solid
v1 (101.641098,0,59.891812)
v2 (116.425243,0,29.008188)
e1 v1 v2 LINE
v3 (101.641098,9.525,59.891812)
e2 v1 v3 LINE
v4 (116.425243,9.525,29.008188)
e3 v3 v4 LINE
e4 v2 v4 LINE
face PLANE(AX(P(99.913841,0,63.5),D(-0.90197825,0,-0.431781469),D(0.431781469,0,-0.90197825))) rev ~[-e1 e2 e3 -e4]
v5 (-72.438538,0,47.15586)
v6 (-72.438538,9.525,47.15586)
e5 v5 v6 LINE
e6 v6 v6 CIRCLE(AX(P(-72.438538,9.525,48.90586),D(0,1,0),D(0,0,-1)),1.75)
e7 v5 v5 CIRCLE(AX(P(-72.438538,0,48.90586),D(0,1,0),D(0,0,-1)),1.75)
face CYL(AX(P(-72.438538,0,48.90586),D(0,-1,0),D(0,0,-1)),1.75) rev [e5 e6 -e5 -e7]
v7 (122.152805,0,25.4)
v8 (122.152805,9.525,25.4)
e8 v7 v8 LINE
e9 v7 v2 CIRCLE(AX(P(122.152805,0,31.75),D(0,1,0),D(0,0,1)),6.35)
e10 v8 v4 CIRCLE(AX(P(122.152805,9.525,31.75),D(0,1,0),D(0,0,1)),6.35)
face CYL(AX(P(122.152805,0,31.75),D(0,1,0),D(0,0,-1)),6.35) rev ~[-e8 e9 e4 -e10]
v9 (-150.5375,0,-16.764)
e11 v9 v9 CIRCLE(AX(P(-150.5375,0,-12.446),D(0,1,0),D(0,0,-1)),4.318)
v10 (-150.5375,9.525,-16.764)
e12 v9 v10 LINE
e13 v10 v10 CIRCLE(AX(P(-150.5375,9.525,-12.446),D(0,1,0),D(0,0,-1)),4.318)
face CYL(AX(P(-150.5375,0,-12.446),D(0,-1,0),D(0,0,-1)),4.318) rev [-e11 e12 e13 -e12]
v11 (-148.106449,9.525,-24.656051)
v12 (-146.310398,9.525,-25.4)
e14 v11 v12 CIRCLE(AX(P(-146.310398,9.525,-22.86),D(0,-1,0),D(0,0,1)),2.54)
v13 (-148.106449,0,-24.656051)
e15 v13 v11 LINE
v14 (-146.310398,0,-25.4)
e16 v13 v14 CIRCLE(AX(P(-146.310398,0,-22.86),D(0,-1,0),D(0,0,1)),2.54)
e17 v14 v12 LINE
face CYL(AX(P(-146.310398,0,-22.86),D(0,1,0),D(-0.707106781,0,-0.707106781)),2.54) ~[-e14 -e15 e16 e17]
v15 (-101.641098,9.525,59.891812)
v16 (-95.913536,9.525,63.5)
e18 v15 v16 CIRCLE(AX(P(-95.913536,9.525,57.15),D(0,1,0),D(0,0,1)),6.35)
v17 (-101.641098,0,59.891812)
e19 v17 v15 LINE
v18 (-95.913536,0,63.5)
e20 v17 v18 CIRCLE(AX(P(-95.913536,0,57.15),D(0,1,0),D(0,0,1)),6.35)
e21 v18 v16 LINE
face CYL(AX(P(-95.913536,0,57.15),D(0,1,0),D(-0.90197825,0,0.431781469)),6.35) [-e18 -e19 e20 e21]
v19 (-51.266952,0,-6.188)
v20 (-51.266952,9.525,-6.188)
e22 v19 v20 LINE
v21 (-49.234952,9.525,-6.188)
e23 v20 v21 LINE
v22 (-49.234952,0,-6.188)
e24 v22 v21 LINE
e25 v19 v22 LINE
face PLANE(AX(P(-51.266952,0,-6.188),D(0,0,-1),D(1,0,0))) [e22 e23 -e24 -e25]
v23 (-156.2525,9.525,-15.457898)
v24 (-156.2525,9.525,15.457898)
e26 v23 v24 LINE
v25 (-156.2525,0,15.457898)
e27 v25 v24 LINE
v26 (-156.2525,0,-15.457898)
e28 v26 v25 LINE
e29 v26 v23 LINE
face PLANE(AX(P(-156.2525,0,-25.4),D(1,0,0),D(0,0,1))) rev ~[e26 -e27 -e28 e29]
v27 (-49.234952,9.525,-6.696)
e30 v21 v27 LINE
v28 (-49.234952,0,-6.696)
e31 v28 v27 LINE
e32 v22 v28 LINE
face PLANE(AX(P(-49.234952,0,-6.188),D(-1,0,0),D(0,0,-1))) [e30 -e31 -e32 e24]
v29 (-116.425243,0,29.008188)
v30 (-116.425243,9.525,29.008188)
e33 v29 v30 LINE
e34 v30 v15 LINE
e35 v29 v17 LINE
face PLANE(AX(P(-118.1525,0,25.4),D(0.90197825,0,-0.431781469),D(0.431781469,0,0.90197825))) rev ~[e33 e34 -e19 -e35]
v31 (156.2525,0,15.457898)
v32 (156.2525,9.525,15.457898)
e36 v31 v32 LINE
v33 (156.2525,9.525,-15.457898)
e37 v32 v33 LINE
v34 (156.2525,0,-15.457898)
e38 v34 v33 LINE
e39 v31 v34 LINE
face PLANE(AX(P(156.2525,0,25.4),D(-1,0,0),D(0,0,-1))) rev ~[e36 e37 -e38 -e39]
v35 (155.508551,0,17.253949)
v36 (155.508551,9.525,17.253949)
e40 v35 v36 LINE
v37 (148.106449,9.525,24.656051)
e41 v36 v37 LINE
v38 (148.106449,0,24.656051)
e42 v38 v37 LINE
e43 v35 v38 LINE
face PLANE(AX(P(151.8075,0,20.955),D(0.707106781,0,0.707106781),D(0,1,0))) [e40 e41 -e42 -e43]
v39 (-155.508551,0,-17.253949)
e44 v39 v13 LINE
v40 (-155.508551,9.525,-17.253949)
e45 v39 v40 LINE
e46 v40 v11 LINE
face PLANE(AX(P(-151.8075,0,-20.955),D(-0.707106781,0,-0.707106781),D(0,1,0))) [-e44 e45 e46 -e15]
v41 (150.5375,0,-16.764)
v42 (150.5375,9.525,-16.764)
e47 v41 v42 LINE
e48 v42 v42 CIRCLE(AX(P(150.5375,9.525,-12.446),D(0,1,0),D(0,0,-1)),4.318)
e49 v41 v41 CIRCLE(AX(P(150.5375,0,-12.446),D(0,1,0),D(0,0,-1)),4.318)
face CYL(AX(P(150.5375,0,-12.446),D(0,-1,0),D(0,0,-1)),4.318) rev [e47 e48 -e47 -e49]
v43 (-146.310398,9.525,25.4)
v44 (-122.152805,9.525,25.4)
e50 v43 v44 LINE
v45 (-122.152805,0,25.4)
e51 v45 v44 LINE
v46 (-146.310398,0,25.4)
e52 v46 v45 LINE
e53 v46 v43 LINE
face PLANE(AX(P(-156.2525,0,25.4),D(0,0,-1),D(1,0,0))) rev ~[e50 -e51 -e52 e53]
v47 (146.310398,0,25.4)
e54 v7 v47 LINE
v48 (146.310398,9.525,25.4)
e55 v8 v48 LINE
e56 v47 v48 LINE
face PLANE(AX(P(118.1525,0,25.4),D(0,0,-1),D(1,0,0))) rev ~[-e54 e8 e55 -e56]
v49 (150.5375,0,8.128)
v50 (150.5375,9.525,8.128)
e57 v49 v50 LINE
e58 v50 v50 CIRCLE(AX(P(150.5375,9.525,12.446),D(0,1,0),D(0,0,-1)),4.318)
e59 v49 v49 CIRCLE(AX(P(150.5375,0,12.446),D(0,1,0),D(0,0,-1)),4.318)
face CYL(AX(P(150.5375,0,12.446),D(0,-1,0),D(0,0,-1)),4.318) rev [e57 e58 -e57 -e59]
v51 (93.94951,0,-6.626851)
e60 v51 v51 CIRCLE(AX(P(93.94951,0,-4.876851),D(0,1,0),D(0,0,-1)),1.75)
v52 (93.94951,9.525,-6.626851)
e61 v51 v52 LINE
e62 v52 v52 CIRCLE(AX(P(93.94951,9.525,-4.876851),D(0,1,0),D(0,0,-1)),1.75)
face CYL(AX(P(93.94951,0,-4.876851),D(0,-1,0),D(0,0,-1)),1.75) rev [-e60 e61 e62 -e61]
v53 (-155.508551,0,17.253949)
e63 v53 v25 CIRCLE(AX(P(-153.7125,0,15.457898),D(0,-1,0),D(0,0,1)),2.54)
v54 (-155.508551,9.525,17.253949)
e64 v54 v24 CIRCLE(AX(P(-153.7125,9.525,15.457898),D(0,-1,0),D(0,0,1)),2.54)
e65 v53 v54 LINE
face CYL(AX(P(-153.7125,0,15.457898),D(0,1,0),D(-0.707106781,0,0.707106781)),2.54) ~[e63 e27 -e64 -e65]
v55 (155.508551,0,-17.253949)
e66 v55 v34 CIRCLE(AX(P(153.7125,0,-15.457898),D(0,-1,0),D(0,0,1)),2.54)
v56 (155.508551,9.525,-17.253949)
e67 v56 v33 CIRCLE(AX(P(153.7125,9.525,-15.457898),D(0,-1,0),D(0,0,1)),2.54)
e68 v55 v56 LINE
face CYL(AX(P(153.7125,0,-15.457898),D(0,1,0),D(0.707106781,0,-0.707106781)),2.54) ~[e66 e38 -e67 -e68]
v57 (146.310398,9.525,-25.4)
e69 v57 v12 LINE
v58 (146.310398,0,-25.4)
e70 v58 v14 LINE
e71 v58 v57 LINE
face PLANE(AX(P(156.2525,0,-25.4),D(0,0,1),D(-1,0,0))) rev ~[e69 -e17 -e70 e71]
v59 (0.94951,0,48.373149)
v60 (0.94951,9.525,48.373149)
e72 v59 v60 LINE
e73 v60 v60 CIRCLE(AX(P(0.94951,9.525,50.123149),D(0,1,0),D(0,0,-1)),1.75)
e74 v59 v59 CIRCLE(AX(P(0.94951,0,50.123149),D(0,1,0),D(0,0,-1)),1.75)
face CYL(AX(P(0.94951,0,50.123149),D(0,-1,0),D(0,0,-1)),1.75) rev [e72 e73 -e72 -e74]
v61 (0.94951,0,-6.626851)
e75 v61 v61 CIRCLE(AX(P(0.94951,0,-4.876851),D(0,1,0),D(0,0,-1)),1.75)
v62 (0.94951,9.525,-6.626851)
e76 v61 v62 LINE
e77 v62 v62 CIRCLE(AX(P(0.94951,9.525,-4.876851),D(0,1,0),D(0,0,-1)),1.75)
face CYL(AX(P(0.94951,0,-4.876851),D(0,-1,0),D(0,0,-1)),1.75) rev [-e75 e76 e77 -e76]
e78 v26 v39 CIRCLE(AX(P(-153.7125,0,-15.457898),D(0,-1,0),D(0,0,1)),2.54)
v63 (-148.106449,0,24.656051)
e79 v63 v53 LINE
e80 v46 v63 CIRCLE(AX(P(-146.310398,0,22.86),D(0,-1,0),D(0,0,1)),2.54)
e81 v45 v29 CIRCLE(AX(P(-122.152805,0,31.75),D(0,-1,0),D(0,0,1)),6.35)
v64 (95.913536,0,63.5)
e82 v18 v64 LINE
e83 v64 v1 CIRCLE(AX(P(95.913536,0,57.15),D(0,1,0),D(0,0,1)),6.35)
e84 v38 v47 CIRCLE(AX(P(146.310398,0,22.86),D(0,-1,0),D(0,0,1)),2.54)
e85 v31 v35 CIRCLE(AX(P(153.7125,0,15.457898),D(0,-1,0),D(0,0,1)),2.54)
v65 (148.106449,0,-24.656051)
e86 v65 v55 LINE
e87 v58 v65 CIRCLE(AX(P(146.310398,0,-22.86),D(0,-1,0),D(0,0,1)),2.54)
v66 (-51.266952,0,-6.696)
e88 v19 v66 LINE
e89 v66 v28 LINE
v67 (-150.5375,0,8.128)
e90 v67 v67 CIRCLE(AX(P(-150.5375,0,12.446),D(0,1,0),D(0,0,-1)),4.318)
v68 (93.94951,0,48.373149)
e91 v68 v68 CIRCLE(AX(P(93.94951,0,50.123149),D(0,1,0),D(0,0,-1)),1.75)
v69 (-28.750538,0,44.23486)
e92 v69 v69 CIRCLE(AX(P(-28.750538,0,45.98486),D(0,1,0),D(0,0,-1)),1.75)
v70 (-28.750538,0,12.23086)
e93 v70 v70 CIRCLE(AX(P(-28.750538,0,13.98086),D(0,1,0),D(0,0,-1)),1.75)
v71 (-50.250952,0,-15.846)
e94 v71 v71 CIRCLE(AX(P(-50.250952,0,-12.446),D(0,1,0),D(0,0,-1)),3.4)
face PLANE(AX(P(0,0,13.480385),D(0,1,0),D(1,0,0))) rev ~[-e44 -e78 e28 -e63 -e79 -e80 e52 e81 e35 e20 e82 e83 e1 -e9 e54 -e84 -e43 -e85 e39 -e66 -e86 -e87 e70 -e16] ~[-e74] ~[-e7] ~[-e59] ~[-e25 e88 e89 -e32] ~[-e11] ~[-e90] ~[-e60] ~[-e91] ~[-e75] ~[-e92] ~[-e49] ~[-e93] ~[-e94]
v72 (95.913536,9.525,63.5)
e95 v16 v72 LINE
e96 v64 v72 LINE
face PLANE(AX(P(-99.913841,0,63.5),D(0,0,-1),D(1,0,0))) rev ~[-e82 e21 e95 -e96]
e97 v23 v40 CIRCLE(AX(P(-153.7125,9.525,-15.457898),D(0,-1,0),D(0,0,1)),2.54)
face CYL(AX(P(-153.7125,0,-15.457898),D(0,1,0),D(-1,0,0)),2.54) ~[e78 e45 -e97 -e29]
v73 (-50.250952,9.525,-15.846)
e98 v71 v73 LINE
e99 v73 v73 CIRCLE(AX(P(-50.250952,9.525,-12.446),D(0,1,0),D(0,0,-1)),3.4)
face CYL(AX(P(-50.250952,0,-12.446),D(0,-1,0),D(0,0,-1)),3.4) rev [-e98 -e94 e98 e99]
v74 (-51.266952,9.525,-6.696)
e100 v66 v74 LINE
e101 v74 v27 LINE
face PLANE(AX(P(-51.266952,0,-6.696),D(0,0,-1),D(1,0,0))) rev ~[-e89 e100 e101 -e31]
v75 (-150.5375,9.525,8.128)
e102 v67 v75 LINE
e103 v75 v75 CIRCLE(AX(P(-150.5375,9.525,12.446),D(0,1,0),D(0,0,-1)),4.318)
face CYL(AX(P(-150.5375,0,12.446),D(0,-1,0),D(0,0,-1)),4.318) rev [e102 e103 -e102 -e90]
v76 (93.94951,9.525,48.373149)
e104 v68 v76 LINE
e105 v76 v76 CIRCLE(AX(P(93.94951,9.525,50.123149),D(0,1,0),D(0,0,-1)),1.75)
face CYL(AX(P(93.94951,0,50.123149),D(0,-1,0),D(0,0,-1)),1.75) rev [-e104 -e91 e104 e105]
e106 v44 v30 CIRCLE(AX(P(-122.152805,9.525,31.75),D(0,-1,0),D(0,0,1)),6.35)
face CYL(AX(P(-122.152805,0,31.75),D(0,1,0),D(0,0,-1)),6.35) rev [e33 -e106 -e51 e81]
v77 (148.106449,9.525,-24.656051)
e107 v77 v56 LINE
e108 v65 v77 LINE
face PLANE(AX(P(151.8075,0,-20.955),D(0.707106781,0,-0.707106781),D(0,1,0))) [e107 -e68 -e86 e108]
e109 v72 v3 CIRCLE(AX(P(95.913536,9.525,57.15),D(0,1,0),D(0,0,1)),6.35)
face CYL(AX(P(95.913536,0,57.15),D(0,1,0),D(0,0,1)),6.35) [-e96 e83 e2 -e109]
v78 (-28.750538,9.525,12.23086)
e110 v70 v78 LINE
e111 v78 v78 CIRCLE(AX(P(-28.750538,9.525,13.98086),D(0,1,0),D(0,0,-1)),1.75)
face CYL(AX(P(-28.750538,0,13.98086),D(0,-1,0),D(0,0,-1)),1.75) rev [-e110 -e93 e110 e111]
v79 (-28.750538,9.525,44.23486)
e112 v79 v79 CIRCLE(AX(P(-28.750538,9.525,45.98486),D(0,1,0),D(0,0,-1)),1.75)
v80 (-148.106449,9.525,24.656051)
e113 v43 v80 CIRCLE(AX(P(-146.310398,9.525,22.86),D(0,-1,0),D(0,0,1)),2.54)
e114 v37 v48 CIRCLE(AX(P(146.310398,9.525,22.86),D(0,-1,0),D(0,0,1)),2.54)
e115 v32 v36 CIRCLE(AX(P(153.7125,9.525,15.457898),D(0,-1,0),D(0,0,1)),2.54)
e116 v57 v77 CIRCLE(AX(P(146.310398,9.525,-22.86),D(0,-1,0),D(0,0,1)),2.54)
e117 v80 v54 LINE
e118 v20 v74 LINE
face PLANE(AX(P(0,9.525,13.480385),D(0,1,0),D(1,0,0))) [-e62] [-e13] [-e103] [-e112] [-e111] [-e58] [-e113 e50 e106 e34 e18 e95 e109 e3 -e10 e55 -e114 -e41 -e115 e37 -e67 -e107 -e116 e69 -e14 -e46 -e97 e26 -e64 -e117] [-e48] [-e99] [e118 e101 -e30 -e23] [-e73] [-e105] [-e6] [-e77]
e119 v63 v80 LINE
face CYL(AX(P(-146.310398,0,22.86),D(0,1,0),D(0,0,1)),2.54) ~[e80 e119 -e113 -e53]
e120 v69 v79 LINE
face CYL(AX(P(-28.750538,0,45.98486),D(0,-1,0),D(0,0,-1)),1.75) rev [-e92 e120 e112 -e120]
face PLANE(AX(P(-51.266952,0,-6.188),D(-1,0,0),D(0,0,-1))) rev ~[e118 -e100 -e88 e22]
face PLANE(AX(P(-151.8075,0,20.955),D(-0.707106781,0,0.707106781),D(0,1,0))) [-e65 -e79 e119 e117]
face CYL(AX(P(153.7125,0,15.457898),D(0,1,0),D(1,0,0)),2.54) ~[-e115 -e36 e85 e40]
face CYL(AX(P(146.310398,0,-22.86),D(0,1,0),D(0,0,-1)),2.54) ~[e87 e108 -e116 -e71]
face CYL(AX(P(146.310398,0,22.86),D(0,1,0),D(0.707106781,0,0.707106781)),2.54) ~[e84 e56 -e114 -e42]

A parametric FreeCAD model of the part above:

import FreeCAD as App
import Part
import Sketcher
from FreeCAD import Vector
Q = App.Units.Quantity


def edges_at(feature, points):
    """Names of the edges that pass closest to the given points."""
    edges = feature.Shape.Edges
    near = lambda p: min(range(len(edges)), key=lambda i: edges[i].distToShape(Part.Vertex(*p))[0])
    return sorted({f"Edge{near(p) + 1}" for p in points})

doc = App.newDocument("Part")
body = doc.addObject("PartDesign::Body", "Body")

# Sketch on XZ plane
sketch1 = doc.addObject("Sketcher::SketchObject", "Sketch")
body.addObject(sketch1)
sketch1.AttachmentSupport = (doc.XZ_Plane, [""])
sketch1.MapMode = "FlatFace"
sketch1.addGeometry([
    Part.LineSegment(Vector(-156.2525, -25.4, 0), Vector(-156.2525, 25.4, 0)),  # 0
    Part.LineSegment(Vector(-156.2525, 25.4, 0), Vector(-118.1525, 25.4, 0)),  # 1
    Part.LineSegment(Vector(-118.1525, 25.4, 0), Vector(-99.913841, 63.5, 0)),  # 2
    Part.LineSegment(Vector(-99.913841, 63.5, 0), Vector(99.913841, 63.5, 0)),  # 3
    Part.LineSegment(Vector(99.913841, 63.5, 0), Vector(118.1525, 25.4, 0)),  # 4
    Part.LineSegment(Vector(118.1525, 25.4, 0), Vector(156.2525, 25.4, 0)),  # 5
    Part.LineSegment(Vector(156.2525, 25.4, 0), Vector(156.2525, -25.4, 0)),  # 6
    Part.LineSegment(Vector(156.2525, -25.4, 0), Vector(-156.2525, -25.4, 0)),  # 7
    Part.Circle(Vector(-72.438538, 48.90586, 0), Vector(0, 0, 1), 1.75),  # 8
    Part.Circle(Vector(-28.750538, 45.98486, 0), Vector(0, 0, 1), 1.75),  # 9
    Part.Circle(Vector(0.94951, 50.123149, 0), Vector(0, 0, 1), 1.75),  # 10
    Part.Circle(Vector(93.94951, 50.123149, 0), Vector(0, 0, 1), 1.75),  # 11
    Part.Circle(Vector(-150.5375, 12.446, 0), Vector(0, 0, 1), 4.318),  # 12
    Part.Circle(Vector(-28.750538, 13.98086, 0), Vector(0, 0, 1), 1.75),  # 13
    Part.Circle(Vector(-150.5375, -12.446, 0), Vector(0, 0, 1), 4.318),  # 14
    Part.LineSegment(Vector(-49.234952, -6.188, 0), Vector(-51.266952, -6.188, 0)),  # 15
    Part.LineSegment(Vector(-51.266952, -6.188, 0), Vector(-51.266952, -6.696, 0)),  # 16
    Part.LineSegment(Vector(-51.266952, -6.696, 0), Vector(-49.234952, -6.696, 0)),  # 17
    Part.LineSegment(Vector(-49.234952, -6.696, 0), Vector(-49.234952, -6.188, 0)),  # 18
    Part.Circle(Vector(-50.250952, -12.446, 0), Vector(0, 0, 1), 3.4),  # 19
    Part.Circle(Vector(150.5375, 12.446, 0), Vector(0, 0, 1), 4.318),  # 20
    Part.Circle(Vector(0.94951, -4.876851, 0), Vector(0, 0, 1), 1.75),  # 21
    Part.Circle(Vector(93.94951, -4.876851, 0), Vector(0, 0, 1), 1.75),  # 22
    Part.Circle(Vector(150.5375, -12.446, 0), Vector(0, 0, 1), 4.318),  # 23
], False)
sketch1.addConstraint([
    Sketcher.Constraint("Coincident", 0, 2, 1, 1),
    Sketcher.Constraint("Coincident", 1, 2, 2, 1),
    Sketcher.Constraint("Coincident", 2, 2, 3, 1),
    Sketcher.Constraint("Coincident", 3, 2, 4, 1),
    Sketcher.Constraint("Coincident", 4, 2, 5, 1),
    Sketcher.Constraint("Coincident", 5, 2, 6, 1),
    Sketcher.Constraint("Coincident", 6, 2, 7, 1),
    Sketcher.Constraint("Coincident", 7, 2, 0, 1),
    Sketcher.Constraint("Coincident", 15, 2, 16, 1),
    Sketcher.Constraint("Coincident", 16, 2, 17, 1),
    Sketcher.Constraint("Coincident", 17, 2, 18, 1),
    Sketcher.Constraint("Coincident", 18, 2, 15, 1),
    Sketcher.Constraint("Vertical", 0),
    Sketcher.Constraint("Horizontal", 1),
    Sketcher.Constraint("Horizontal", 3),
    Sketcher.Constraint("Horizontal", 5),
    Sketcher.Constraint("Vertical", 6),
    Sketcher.Constraint("Horizontal", 7),
    Sketcher.Constraint("Horizontal", 15),
    Sketcher.Constraint("Vertical", 16),
    Sketcher.Constraint("Horizontal", 17),
    Sketcher.Constraint("Vertical", 18),
    Sketcher.Constraint("Equal", 8, 9),
    Sketcher.Constraint("Equal", 9, 10),
    Sketcher.Constraint("Equal", 10, 11),
    Sketcher.Constraint("Equal", 11, 13),
    Sketcher.Constraint("Equal", 12, 14),
    Sketcher.Constraint("Equal", 14, 20),
    Sketcher.Constraint("Equal", 13, 21),
    Sketcher.Constraint("Equal", 21, 22),
    Sketcher.Constraint("Equal", 20, 23),
    Sketcher.Constraint("Symmetric", 14, 3, 20, 3, -1, 1),
    Sketcher.Constraint("Symmetric", 12, 3, 23, 3, -1, 1),
    Sketcher.Constraint("Symmetric", 0, 2, 6, 2, -1, 1),
    Sketcher.Constraint("Symmetric", 12, 3, 20, 3, -2),
    Sketcher.Constraint("Symmetric", 1, 2, 4, 2, -2),
    Sketcher.Constraint("Horizontal", 10, 3, 11, 3),
    Sketcher.Constraint("Horizontal", 14, 3, 19, 3),
    Sketcher.Constraint("Horizontal", 21, 3, 22, 3),
    Sketcher.Constraint("Vertical", 9, 3, 13, 3),
    Sketcher.Constraint("Vertical", 10, 3, 21, 3),
    Sketcher.Constraint("Vertical", 11, 3, 22, 3),
    Sketcher.Constraint("Equal", 2, 4),
    Sketcher.Constraint("Diameter", 12, Q("0.34 in")),
    Sketcher.Constraint("DistanceY", 0, 1, 0, 2, Q("2 in")),
    Sketcher.Constraint("DistanceX", 1, 1, 1, 2, Q("1.5 in")),
    Sketcher.Constraint("DistanceX", 15, 2, 15, 1, Q("0.08 in")),
    Sketcher.Constraint("DistanceY", 16, 2, 16, 1, Q("0.02 in")),
    Sketcher.Constraint("DistanceY", -1, 1, 2, 2, Q("2.5 in")),
    Sketcher.Constraint("Diameter", 8, Q("3.5 mm")),
    Sketcher.Constraint("Diameter", 19, Q("6.8 mm")),
    Sketcher.Constraint("DistanceY", -1, 1, 12, 3, Q("0.49 in")),
    Sketcher.Constraint("DistanceX", 8, 3, 9, 3, Q("1.72 in")),
    Sketcher.Constraint("DistanceY", 13, 3, 9, 3, Q("1.26 in")),
    Sketcher.Constraint("DistanceX", 15, 2, 19, 3, Q("0.04 in")),
    Sketcher.Constraint("DistanceY", 9, 3, 8, 3, Q("0.115 in")),
    Sketcher.Constraint("DistanceX", 0, 2, 12, 3, Q("0.225 in")),
    Sketcher.Constraint("DistanceX", 7, 2, 7, 1, Q("312.505 mm")),
    Sketcher.Constraint("DistanceX", 3, 1, 3, 2, Q("199.827681 mm")),
    Sketcher.Constraint("DistanceY", 15, 2, -1, 1, Q("6.188 mm")),
    Sketcher.Constraint("DistanceX", 10, 3, 11, 3, Q("93 mm")),
    Sketcher.Constraint("DistanceY", 21, 3, 10, 3, Q("55 mm")),
    Sketcher.Constraint("DistanceX", 8, 3, -1, 1, Q("72.438538 mm")),
    Sketcher.Constraint("DistanceY", -1, 1, 8, 3, Q("48.90586 mm")),
    Sketcher.Constraint("DistanceX", -1, 1, 10, 3, Q("0.94951 mm")),
    Sketcher.Constraint("DistanceY", -1, 1, 10, 3, Q("50.123149 mm")),
    Sketcher.Constraint("DistanceX", 19, 3, -1, 1, Q("50.250952 mm")),
])
pad1 = doc.addObject("PartDesign::Pad", "Pad")
body.addObject(pad1)
pad1.Profile = sketch1
pad1.Length = Q("0.375 in")
pad1.Reversed = True
doc.recompute()

fillet = doc.addObject("PartDesign::Fillet", "Fillet")
body.addObject(fillet)
fillet.Base = (pad1, edges_at(pad1, [
    (118.153, 4.763, 25.4),
    (99.914, 4.763, 63.5),
    (-99.914, 4.763, 63.5),
    (-118.153, 4.763, 25.4),
]))
fillet.Radius = Q("0.25 in")
doc.recompute()

chamfer = doc.addObject("PartDesign::Chamfer", "Chamfer")
body.addObject(chamfer)
chamfer.Base = (fillet, edges_at(fillet, [
    (156.252, 4.763, -25.4),
    (156.252, 4.763, 25.4),
    (-156.252, 4.763, 25.4),
    (-156.252, 4.763, -25.4),
]))
chamfer.Size = Q("0.35 in")
doc.recompute()

fillet2 = doc.addObject("PartDesign::Fillet", "Fillet001")
body.addObject(fillet2)
fillet2.Base = (chamfer, edges_at(chamfer, [
    (-156.252, 4.763, 16.51),
    (-156.252, 4.763, -16.51),
    (147.363, 4.763, -25.4),
    (-147.363, 4.763, -25.4),
    (-147.363, 4.763, 25.4),
    (156.252, 4.763, 16.51),
    (156.252, 4.763, -16.51),
    (147.363, 4.763, 25.4),
]))
fillet2.Radius = Q("0.1 in")

doc.recompute()
